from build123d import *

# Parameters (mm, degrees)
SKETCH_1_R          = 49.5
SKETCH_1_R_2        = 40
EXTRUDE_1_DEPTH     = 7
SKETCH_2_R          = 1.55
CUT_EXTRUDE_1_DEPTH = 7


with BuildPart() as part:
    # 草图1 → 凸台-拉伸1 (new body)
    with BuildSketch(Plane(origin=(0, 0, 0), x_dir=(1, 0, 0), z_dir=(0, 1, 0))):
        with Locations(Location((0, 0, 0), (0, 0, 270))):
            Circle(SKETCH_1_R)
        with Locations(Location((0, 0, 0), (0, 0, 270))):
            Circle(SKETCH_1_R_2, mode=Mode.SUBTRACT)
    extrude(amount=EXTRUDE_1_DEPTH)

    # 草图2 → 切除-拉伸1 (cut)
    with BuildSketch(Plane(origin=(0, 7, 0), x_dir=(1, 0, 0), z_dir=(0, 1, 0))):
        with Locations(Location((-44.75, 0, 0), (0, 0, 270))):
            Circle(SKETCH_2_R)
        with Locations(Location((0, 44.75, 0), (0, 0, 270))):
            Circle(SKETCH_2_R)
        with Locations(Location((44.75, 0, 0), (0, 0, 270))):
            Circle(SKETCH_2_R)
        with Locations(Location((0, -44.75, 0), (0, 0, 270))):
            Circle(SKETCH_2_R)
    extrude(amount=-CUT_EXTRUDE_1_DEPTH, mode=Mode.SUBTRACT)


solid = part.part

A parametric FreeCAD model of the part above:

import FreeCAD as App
import Part
import Sketcher
Q = App.Units.Quantity

doc = App.newDocument("Part")
body = doc.addObject("PartDesign::Body", "Body")

# Sketch on XZ plane
sketch1 = body.newObject("Sketcher::SketchObject", "Sketch")
sketch1.AttachmentSupport = (doc.getObject("XZ_Plane"), [""])
sketch1.MapMode = "FlatFace"
sketch1.addGeometry(Part.Circle(App.Vector(0, 0, 0), App.Vector(0, 0, 1), 50), False)
sketch1.addGeometry(Part.Circle(App.Vector(0, 0, 0), App.Vector(0, 0, 1), 40), False)
sketch1.addConstraint(Sketcher.Constraint("Coincident", 0, 3, -1, 1))
sketch1.addConstraint(Sketcher.Constraint("Coincident", 1, 3, -1, 1))
sketch1.addConstraint(Sketcher.Constraint("Diameter", 0, Q("99 mm")))
sketch1.addConstraint(Sketcher.Constraint("Diameter", 1, Q("80 mm")))
pad1 = body.newObject("PartDesign::Pad", "Pad")
pad1.Profile = sketch1
pad1.Length = 7
pad1.Reversed = True

# Sketch on XZ plane
sketch2 = body.newObject("Sketcher::SketchObject", "Sketch001")
sketch2.AttachmentSupport = (doc.getObject("XZ_Plane"), [""])
sketch2.MapMode = "FlatFace"
sketch2.AttachmentOffset = App.Placement(App.Vector(0, 0, -7), App.Rotation())
sketch2.addGeometry(Part.Circle(App.Vector(-44.8, 0, 0), App.Vector(0, 0, 1), 1.6), False)
sketch2.addGeometry(Part.Circle(App.Vector(0, -44.8, 0), App.Vector(0, 0, 1), 1.6), False)
sketch2.addGeometry(Part.Circle(App.Vector(44.8, 0, 0), App.Vector(0, 0, 1), 1.6), False)
sketch2.addGeometry(Part.Circle(App.Vector(0, 44.8, 0), App.Vector(0, 0, 1), 1.6), False)
sketch2.addConstraint(Sketcher.Constraint("Equal", 0, 1))
sketch2.addConstraint(Sketcher.Constraint("Equal", 1, 2))
sketch2.addConstraint(Sketcher.Constraint("Equal", 2, 3))
sketch2.addConstraint(Sketcher.Constraint("Symmetric", 0, 3, 2, 3, -1, 1))
sketch2.addConstraint(Sketcher.Constraint("Symmetric", 1, 3, 3, 3, -1, 1))
sketch2.addConstraint(Sketcher.Constraint("PointOnObject", 0, 3, -1))
sketch2.addConstraint(Sketcher.Constraint("PointOnObject", 1, 3, -2))
sketch2.addConstraint(Sketcher.Constraint("Diameter", 0, Q("3.1 mm")))
sketch2.addConstraint(Sketcher.Constraint("DistanceX", 0, 3, 2, 3, Q("89.5 mm")))
sketch2.addConstraint(Sketcher.Constraint("DistanceY", 1, 3, 3, 3, Q("89.5 mm")))
pocket1 = body.newObject("PartDesign::Pocket", "Pocket")
pocket1.Profile = sketch2
pocket1.Length = 7
pocket1.Reversed = True

doc.recompute()
